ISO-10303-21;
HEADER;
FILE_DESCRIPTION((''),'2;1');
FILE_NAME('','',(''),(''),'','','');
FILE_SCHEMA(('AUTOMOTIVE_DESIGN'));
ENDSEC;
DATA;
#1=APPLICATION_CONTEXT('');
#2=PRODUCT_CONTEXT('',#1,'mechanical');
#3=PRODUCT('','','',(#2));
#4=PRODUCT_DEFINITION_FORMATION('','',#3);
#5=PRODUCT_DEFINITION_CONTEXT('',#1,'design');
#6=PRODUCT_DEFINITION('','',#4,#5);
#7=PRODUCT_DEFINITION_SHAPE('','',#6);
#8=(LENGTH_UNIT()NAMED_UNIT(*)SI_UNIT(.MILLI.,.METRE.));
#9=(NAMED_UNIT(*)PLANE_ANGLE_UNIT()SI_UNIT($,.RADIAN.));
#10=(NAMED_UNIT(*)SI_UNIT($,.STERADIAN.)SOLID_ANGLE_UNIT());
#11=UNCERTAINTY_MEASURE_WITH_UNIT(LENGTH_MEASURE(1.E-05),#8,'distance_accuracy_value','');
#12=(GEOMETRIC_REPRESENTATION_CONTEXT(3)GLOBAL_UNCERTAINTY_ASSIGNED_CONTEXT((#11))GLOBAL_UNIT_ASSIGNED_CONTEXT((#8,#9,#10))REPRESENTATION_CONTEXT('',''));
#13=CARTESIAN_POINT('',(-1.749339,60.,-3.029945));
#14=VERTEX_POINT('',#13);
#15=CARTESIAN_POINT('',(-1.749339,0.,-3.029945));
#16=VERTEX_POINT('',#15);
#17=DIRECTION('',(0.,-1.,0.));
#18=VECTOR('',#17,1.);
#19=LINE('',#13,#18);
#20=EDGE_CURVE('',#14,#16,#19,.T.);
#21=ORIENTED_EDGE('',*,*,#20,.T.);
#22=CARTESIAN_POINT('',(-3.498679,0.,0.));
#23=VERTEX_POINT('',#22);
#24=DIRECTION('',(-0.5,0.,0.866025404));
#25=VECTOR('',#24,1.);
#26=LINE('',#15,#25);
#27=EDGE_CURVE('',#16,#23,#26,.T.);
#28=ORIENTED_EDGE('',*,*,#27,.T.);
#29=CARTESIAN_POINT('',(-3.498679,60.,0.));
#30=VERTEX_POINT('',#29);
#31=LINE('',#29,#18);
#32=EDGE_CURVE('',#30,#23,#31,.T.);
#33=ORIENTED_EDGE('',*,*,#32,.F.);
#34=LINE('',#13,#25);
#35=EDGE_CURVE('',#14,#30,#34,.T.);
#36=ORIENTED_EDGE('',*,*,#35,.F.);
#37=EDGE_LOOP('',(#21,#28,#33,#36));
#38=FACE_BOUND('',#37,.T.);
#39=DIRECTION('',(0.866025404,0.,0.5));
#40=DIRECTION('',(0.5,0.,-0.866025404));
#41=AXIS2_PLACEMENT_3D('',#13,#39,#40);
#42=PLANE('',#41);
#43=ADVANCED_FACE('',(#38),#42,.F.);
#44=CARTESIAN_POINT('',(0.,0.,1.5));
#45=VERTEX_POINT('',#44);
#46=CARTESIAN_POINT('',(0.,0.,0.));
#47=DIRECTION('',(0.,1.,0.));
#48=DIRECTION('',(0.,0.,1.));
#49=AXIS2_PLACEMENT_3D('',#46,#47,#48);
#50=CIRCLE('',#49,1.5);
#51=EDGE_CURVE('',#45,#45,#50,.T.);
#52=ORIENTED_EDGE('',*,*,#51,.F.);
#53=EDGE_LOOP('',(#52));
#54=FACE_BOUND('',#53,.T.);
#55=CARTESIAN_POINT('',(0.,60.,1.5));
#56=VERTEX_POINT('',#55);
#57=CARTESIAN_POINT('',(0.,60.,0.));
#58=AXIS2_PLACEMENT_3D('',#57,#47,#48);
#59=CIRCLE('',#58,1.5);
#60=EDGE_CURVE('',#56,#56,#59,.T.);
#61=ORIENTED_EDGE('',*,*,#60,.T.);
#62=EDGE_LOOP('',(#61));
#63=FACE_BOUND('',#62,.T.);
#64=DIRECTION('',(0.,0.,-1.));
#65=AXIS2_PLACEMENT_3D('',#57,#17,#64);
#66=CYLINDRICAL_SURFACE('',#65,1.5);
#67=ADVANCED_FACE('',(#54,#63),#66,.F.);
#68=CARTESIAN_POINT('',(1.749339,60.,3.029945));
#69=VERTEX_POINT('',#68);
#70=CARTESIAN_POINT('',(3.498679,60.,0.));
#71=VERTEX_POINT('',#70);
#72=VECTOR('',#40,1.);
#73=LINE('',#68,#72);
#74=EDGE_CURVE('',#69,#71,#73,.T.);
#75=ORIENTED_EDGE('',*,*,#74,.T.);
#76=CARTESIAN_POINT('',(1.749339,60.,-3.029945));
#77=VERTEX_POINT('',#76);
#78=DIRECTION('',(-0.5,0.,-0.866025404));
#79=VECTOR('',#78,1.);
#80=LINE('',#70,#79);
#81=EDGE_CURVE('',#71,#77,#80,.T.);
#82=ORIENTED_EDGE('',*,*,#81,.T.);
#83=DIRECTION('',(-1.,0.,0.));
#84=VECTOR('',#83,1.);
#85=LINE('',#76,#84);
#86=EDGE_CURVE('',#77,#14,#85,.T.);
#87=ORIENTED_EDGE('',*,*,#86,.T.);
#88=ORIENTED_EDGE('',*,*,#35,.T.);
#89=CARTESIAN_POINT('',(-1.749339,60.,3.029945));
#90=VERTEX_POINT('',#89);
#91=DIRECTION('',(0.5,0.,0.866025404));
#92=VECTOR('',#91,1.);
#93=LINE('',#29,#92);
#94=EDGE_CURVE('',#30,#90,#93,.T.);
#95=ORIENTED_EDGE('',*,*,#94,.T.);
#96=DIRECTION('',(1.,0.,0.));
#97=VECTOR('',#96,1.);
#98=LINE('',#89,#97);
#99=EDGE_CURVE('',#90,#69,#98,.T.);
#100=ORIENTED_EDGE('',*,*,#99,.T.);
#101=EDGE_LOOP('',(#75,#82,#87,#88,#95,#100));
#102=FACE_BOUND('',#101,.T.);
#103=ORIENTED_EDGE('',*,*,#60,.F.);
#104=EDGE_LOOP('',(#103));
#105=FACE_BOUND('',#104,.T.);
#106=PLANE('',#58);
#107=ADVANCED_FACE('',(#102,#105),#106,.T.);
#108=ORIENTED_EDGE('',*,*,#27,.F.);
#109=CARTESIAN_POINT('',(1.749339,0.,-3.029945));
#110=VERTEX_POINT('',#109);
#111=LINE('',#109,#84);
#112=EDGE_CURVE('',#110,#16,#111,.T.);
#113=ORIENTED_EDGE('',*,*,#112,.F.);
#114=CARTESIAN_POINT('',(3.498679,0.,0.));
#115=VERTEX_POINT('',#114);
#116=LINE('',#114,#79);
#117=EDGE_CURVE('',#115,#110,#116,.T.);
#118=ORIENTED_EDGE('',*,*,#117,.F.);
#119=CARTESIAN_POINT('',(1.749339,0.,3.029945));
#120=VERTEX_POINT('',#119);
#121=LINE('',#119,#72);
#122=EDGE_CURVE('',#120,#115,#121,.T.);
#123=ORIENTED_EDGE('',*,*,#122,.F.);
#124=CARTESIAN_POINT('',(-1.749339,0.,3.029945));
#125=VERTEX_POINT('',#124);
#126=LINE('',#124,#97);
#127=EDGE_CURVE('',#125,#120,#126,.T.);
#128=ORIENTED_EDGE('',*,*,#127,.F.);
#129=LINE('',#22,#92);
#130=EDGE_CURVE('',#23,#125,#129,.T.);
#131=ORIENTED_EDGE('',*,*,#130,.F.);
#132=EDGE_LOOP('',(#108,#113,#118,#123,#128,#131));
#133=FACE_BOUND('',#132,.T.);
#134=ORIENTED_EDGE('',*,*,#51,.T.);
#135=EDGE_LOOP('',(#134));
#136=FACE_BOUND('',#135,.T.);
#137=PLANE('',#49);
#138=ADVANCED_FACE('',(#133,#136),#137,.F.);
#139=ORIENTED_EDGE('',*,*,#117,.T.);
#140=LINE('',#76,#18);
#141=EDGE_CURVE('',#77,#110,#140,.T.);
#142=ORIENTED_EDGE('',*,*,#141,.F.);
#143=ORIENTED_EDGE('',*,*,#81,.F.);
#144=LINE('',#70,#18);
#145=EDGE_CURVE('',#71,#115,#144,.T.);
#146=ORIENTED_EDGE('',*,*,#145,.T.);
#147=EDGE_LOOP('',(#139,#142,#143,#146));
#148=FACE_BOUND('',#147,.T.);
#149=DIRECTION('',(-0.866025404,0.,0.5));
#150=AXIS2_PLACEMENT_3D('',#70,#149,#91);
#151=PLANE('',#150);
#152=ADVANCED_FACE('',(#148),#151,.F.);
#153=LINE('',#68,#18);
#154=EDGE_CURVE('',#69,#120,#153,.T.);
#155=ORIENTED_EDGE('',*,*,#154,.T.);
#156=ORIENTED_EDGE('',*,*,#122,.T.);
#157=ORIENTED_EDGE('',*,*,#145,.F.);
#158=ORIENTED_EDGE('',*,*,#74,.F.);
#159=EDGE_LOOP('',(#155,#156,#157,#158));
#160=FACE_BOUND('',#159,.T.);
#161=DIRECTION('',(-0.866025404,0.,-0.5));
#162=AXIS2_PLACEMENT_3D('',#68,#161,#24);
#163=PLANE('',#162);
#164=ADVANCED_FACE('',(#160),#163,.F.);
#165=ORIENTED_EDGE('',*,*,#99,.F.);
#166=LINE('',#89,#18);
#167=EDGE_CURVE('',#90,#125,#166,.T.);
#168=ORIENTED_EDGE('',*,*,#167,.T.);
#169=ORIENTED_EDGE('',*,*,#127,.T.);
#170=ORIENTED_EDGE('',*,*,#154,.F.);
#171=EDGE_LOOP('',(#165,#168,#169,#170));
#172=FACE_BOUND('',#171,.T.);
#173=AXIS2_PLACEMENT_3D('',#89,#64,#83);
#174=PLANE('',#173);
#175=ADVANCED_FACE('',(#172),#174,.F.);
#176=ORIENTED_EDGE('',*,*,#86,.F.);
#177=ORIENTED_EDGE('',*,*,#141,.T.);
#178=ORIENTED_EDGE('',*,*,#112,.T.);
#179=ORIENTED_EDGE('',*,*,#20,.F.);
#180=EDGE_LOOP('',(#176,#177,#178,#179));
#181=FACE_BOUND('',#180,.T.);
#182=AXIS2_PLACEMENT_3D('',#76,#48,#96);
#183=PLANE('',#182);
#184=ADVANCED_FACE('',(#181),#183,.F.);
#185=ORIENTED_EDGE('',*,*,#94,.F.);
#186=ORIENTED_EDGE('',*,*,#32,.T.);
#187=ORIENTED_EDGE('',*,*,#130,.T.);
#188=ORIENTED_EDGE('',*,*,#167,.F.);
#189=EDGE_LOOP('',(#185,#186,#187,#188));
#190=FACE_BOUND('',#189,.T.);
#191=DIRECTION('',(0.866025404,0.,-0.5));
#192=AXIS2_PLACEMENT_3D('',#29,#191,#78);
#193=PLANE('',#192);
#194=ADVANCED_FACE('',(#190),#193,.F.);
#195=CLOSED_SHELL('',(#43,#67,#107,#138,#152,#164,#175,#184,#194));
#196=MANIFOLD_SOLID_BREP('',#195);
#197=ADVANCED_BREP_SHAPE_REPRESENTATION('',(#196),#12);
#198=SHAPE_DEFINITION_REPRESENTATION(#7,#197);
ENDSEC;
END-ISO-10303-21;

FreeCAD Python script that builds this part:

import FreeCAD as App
import Part
import Sketcher
from FreeCAD import Vector
Q = App.Units.Quantity


def add_polygon(sketch, points):
    """Adds a closed chain of lines whose ends are joined by coincident constraints."""
    first, n = sketch.GeometryCount, len(points)
    for a, b in zip(points, points[1:] + points[:1]):
        sketch.addGeometry(Part.LineSegment(App.Vector(*a, 0), App.Vector(*b, 0)), False)
    for i in range(n):
        sketch.addConstraint(Sketcher.Constraint("Coincident", first + i, 2, first + (i + 1) % n, 1))

doc = App.newDocument("Part")
params = doc.addObject("Spreadsheet::Sheet", "Params")
for row, (alias, value) in enumerate([
    ("sketch1_diameter", "3 mm"),
    ("pad1_length", "60 mm"),
], start=1):
    params.set(f"A{row}", alias)
    params.set(f"B{row}", "=" + value)
    params.setAlias(f"B{row}", alias)

body = doc.addObject("PartDesign::Body", "Body")

# Sketch on XZ plane
sketch1 = body.newObject("Sketcher::SketchObject", "Sketch")
sketch1.AttachmentSupport = (doc.getObject("XZ_Plane"), [""])
sketch1.MapMode = "FlatFace"
add_polygon(sketch1, [(-3.5, 0), (-1.7, 3), (1.7, 3), (3.5, 0), (1.7, -3), (-1.7, -3)])  # lines 0-5
sketch1.addGeometry(Part.Circle(Vector(0, 0, 0), Vector(0, 0, 1), 1.5), False)  # 6
sketch1.addConstraint([
    Sketcher.Constraint("Horizontal", 1),
    Sketcher.Constraint("Horizontal", 4),
    Sketcher.Constraint("Coincident", 6, 3, -1, 1),
    Sketcher.Constraint("Symmetric", 0, 2, 3, 2, -1, 1),
    Sketcher.Constraint("Symmetric", 2, 2, 5, 2, -1, 1),
    Sketcher.Constraint("PointOnObject", 2, 2, -1),
    Sketcher.Constraint("Parallel", 2, 5),
    Sketcher.Constraint("Vertical", 1, 2, 3, 2),
    Sketcher.Constraint("Diameter", 6, 3.0),
    Sketcher.Constraint("Angle", 0, Q("60 deg")),
    Sketcher.Constraint("DistanceX", 1, 1, 1, 2, 3.498679),
    Sketcher.Constraint("Distance", 0, 3.498679),
])
sketch1.setExpression("Constraints[14]", "Params.sketch1_diameter")
pad1 = body.newObject("PartDesign::Pad", "Pad")
pad1.Profile = sketch1
pad1.setExpression("Length", "Params.pad1_length")
pad1.Reversed = True

doc.recompute()
